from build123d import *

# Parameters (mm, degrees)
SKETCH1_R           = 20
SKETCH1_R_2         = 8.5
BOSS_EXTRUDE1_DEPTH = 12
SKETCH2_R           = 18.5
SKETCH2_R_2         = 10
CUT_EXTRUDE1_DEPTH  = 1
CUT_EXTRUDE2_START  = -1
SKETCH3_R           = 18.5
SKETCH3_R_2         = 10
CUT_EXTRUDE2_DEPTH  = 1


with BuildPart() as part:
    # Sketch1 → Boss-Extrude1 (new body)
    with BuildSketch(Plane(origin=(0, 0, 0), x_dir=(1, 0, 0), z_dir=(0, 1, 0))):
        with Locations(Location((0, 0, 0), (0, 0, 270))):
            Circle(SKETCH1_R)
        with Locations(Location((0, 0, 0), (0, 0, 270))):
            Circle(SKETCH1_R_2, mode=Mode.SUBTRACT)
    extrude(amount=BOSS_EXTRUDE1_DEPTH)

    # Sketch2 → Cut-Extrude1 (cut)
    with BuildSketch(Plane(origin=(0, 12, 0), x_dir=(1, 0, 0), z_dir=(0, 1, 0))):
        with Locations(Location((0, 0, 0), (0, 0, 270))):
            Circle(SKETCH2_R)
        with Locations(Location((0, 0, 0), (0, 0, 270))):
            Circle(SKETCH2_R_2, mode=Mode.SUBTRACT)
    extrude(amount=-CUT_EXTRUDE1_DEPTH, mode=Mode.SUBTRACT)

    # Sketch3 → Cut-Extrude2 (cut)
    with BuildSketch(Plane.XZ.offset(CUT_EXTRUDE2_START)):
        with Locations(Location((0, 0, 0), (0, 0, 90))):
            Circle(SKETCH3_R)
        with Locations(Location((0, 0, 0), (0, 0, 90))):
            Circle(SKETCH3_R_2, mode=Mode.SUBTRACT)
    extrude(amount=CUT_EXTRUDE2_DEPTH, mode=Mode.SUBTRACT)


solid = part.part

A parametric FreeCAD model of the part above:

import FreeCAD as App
import Part
import Sketcher

V = App.Vector

doc = App.newDocument("Part")
params = doc.addObject("Spreadsheet::Sheet", "Params")
for row, (alias, value) in enumerate([
    ("sketch1_diameter", "40 mm"),
    ("sketch1_diameter2", "17 mm"),
    ("pad1_length", "12 mm"),
    ("sketch2_diameter", "37 mm"),
    ("sketch2_diameter2", "20 mm"),
    ("pocket1_length", "1 mm"),
    ("sketch3_diameter", "37 mm"),
    ("sketch3_diameter2", "20 mm"),
    ("pocket2_length", "1 mm"),
], start=1):
    params.set(f"A{row}", alias)
    params.set(f"B{row}", "=" + value)
    params.setAlias(f"B{row}", alias)

body = doc.addObject("PartDesign::Body", "Body")

sketch1 = body.newObject("Sketcher::SketchObject", "Sketch")
sketch1.AttachmentSupport = (doc.getObject("XZ_Plane"), [""])
sketch1.MapMode = "FlatFace"
sketch1.addGeometry([
    Part.Circle(V(0, 0, 0), V(0, 0, 1), 20),
    Part.Circle(V(0, 0, 0), V(0, 0, 1), 8),
], False)
sketch1.addConstraint([
    Sketcher.Constraint("Coincident", 0, 3, -1, 1),
    Sketcher.Constraint("Coincident", 1, 3, -1, 1),
    Sketcher.Constraint("Diameter", 0, 40.0),
    Sketcher.Constraint("Diameter", 1, 17.0),
])
sketch1.setExpression("Constraints[2]", "Params.sketch1_diameter")
sketch1.setExpression("Constraints[3]", "Params.sketch1_diameter2")
pad1 = body.newObject("PartDesign::Pad", "Pad")
pad1.Profile = sketch1
pad1.setExpression("Length", "Params.pad1_length")
pad1.Reversed = True

sketch2 = body.newObject("Sketcher::SketchObject", "Sketch001")
sketch2.AttachmentSupport = (doc.getObject("XZ_Plane"), [""])
sketch2.MapMode = "FlatFace"
sketch2.AttachmentOffset = App.Placement(V(0, 0, -12), App.Rotation())
sketch2.addGeometry([
    Part.Circle(V(0, 0, 0), V(0, 0, 1), 18),
    Part.Circle(V(0, 0, 0), V(0, 0, 1), 10),
], False)
sketch2.addConstraint([
    Sketcher.Constraint("Coincident", 0, 3, -1, 1),
    Sketcher.Constraint("Coincident", 1, 3, -1, 1),
    Sketcher.Constraint("Diameter", 0, 37.0),
    Sketcher.Constraint("Diameter", 1, 20.0),
])
sketch2.setExpression("Constraints[2]", "Params.sketch2_diameter")
sketch2.setExpression("Constraints[3]", "Params.sketch2_diameter2")
pocket1 = body.newObject("PartDesign::Pocket", "Pocket")
pocket1.Profile = sketch2
pocket1.setExpression("Length", "Params.pocket1_length")
pocket1.Reversed = True

sketch3 = body.newObject("Sketcher::SketchObject", "Sketch002")
sketch3.AttachmentSupport = (doc.getObject("XZ_Plane"), [""])
sketch3.MapMode = "FlatFace"
sketch3.AttachmentOffset = App.Placement(V(0, 0, -1), App.Rotation())
sketch3.addGeometry([
    Part.Circle(V(0, 0, 0), V(0, 0, 1), 18),
    Part.Circle(V(0, 0, 0), V(0, 0, 1), 10),
], False)
sketch3.addConstraint([
    Sketcher.Constraint("Coincident", 0, 3, -1, 1),
    Sketcher.Constraint("Coincident", 1, 3, -1, 1),
    Sketcher.Constraint("Diameter", 0, 37.0),
    Sketcher.Constraint("Diameter", 1, 20.0),
])
sketch3.setExpression("Constraints[2]", "Params.sketch3_diameter")
sketch3.setExpression("Constraints[3]", "Params.sketch3_diameter2")
pocket2 = body.newObject("PartDesign::Pocket", "Pocket001")
pocket2.Profile = sketch3
pocket2.setExpression("Length", "Params.pocket2_length")
pocket2.Reversed = True

doc.recompute()
